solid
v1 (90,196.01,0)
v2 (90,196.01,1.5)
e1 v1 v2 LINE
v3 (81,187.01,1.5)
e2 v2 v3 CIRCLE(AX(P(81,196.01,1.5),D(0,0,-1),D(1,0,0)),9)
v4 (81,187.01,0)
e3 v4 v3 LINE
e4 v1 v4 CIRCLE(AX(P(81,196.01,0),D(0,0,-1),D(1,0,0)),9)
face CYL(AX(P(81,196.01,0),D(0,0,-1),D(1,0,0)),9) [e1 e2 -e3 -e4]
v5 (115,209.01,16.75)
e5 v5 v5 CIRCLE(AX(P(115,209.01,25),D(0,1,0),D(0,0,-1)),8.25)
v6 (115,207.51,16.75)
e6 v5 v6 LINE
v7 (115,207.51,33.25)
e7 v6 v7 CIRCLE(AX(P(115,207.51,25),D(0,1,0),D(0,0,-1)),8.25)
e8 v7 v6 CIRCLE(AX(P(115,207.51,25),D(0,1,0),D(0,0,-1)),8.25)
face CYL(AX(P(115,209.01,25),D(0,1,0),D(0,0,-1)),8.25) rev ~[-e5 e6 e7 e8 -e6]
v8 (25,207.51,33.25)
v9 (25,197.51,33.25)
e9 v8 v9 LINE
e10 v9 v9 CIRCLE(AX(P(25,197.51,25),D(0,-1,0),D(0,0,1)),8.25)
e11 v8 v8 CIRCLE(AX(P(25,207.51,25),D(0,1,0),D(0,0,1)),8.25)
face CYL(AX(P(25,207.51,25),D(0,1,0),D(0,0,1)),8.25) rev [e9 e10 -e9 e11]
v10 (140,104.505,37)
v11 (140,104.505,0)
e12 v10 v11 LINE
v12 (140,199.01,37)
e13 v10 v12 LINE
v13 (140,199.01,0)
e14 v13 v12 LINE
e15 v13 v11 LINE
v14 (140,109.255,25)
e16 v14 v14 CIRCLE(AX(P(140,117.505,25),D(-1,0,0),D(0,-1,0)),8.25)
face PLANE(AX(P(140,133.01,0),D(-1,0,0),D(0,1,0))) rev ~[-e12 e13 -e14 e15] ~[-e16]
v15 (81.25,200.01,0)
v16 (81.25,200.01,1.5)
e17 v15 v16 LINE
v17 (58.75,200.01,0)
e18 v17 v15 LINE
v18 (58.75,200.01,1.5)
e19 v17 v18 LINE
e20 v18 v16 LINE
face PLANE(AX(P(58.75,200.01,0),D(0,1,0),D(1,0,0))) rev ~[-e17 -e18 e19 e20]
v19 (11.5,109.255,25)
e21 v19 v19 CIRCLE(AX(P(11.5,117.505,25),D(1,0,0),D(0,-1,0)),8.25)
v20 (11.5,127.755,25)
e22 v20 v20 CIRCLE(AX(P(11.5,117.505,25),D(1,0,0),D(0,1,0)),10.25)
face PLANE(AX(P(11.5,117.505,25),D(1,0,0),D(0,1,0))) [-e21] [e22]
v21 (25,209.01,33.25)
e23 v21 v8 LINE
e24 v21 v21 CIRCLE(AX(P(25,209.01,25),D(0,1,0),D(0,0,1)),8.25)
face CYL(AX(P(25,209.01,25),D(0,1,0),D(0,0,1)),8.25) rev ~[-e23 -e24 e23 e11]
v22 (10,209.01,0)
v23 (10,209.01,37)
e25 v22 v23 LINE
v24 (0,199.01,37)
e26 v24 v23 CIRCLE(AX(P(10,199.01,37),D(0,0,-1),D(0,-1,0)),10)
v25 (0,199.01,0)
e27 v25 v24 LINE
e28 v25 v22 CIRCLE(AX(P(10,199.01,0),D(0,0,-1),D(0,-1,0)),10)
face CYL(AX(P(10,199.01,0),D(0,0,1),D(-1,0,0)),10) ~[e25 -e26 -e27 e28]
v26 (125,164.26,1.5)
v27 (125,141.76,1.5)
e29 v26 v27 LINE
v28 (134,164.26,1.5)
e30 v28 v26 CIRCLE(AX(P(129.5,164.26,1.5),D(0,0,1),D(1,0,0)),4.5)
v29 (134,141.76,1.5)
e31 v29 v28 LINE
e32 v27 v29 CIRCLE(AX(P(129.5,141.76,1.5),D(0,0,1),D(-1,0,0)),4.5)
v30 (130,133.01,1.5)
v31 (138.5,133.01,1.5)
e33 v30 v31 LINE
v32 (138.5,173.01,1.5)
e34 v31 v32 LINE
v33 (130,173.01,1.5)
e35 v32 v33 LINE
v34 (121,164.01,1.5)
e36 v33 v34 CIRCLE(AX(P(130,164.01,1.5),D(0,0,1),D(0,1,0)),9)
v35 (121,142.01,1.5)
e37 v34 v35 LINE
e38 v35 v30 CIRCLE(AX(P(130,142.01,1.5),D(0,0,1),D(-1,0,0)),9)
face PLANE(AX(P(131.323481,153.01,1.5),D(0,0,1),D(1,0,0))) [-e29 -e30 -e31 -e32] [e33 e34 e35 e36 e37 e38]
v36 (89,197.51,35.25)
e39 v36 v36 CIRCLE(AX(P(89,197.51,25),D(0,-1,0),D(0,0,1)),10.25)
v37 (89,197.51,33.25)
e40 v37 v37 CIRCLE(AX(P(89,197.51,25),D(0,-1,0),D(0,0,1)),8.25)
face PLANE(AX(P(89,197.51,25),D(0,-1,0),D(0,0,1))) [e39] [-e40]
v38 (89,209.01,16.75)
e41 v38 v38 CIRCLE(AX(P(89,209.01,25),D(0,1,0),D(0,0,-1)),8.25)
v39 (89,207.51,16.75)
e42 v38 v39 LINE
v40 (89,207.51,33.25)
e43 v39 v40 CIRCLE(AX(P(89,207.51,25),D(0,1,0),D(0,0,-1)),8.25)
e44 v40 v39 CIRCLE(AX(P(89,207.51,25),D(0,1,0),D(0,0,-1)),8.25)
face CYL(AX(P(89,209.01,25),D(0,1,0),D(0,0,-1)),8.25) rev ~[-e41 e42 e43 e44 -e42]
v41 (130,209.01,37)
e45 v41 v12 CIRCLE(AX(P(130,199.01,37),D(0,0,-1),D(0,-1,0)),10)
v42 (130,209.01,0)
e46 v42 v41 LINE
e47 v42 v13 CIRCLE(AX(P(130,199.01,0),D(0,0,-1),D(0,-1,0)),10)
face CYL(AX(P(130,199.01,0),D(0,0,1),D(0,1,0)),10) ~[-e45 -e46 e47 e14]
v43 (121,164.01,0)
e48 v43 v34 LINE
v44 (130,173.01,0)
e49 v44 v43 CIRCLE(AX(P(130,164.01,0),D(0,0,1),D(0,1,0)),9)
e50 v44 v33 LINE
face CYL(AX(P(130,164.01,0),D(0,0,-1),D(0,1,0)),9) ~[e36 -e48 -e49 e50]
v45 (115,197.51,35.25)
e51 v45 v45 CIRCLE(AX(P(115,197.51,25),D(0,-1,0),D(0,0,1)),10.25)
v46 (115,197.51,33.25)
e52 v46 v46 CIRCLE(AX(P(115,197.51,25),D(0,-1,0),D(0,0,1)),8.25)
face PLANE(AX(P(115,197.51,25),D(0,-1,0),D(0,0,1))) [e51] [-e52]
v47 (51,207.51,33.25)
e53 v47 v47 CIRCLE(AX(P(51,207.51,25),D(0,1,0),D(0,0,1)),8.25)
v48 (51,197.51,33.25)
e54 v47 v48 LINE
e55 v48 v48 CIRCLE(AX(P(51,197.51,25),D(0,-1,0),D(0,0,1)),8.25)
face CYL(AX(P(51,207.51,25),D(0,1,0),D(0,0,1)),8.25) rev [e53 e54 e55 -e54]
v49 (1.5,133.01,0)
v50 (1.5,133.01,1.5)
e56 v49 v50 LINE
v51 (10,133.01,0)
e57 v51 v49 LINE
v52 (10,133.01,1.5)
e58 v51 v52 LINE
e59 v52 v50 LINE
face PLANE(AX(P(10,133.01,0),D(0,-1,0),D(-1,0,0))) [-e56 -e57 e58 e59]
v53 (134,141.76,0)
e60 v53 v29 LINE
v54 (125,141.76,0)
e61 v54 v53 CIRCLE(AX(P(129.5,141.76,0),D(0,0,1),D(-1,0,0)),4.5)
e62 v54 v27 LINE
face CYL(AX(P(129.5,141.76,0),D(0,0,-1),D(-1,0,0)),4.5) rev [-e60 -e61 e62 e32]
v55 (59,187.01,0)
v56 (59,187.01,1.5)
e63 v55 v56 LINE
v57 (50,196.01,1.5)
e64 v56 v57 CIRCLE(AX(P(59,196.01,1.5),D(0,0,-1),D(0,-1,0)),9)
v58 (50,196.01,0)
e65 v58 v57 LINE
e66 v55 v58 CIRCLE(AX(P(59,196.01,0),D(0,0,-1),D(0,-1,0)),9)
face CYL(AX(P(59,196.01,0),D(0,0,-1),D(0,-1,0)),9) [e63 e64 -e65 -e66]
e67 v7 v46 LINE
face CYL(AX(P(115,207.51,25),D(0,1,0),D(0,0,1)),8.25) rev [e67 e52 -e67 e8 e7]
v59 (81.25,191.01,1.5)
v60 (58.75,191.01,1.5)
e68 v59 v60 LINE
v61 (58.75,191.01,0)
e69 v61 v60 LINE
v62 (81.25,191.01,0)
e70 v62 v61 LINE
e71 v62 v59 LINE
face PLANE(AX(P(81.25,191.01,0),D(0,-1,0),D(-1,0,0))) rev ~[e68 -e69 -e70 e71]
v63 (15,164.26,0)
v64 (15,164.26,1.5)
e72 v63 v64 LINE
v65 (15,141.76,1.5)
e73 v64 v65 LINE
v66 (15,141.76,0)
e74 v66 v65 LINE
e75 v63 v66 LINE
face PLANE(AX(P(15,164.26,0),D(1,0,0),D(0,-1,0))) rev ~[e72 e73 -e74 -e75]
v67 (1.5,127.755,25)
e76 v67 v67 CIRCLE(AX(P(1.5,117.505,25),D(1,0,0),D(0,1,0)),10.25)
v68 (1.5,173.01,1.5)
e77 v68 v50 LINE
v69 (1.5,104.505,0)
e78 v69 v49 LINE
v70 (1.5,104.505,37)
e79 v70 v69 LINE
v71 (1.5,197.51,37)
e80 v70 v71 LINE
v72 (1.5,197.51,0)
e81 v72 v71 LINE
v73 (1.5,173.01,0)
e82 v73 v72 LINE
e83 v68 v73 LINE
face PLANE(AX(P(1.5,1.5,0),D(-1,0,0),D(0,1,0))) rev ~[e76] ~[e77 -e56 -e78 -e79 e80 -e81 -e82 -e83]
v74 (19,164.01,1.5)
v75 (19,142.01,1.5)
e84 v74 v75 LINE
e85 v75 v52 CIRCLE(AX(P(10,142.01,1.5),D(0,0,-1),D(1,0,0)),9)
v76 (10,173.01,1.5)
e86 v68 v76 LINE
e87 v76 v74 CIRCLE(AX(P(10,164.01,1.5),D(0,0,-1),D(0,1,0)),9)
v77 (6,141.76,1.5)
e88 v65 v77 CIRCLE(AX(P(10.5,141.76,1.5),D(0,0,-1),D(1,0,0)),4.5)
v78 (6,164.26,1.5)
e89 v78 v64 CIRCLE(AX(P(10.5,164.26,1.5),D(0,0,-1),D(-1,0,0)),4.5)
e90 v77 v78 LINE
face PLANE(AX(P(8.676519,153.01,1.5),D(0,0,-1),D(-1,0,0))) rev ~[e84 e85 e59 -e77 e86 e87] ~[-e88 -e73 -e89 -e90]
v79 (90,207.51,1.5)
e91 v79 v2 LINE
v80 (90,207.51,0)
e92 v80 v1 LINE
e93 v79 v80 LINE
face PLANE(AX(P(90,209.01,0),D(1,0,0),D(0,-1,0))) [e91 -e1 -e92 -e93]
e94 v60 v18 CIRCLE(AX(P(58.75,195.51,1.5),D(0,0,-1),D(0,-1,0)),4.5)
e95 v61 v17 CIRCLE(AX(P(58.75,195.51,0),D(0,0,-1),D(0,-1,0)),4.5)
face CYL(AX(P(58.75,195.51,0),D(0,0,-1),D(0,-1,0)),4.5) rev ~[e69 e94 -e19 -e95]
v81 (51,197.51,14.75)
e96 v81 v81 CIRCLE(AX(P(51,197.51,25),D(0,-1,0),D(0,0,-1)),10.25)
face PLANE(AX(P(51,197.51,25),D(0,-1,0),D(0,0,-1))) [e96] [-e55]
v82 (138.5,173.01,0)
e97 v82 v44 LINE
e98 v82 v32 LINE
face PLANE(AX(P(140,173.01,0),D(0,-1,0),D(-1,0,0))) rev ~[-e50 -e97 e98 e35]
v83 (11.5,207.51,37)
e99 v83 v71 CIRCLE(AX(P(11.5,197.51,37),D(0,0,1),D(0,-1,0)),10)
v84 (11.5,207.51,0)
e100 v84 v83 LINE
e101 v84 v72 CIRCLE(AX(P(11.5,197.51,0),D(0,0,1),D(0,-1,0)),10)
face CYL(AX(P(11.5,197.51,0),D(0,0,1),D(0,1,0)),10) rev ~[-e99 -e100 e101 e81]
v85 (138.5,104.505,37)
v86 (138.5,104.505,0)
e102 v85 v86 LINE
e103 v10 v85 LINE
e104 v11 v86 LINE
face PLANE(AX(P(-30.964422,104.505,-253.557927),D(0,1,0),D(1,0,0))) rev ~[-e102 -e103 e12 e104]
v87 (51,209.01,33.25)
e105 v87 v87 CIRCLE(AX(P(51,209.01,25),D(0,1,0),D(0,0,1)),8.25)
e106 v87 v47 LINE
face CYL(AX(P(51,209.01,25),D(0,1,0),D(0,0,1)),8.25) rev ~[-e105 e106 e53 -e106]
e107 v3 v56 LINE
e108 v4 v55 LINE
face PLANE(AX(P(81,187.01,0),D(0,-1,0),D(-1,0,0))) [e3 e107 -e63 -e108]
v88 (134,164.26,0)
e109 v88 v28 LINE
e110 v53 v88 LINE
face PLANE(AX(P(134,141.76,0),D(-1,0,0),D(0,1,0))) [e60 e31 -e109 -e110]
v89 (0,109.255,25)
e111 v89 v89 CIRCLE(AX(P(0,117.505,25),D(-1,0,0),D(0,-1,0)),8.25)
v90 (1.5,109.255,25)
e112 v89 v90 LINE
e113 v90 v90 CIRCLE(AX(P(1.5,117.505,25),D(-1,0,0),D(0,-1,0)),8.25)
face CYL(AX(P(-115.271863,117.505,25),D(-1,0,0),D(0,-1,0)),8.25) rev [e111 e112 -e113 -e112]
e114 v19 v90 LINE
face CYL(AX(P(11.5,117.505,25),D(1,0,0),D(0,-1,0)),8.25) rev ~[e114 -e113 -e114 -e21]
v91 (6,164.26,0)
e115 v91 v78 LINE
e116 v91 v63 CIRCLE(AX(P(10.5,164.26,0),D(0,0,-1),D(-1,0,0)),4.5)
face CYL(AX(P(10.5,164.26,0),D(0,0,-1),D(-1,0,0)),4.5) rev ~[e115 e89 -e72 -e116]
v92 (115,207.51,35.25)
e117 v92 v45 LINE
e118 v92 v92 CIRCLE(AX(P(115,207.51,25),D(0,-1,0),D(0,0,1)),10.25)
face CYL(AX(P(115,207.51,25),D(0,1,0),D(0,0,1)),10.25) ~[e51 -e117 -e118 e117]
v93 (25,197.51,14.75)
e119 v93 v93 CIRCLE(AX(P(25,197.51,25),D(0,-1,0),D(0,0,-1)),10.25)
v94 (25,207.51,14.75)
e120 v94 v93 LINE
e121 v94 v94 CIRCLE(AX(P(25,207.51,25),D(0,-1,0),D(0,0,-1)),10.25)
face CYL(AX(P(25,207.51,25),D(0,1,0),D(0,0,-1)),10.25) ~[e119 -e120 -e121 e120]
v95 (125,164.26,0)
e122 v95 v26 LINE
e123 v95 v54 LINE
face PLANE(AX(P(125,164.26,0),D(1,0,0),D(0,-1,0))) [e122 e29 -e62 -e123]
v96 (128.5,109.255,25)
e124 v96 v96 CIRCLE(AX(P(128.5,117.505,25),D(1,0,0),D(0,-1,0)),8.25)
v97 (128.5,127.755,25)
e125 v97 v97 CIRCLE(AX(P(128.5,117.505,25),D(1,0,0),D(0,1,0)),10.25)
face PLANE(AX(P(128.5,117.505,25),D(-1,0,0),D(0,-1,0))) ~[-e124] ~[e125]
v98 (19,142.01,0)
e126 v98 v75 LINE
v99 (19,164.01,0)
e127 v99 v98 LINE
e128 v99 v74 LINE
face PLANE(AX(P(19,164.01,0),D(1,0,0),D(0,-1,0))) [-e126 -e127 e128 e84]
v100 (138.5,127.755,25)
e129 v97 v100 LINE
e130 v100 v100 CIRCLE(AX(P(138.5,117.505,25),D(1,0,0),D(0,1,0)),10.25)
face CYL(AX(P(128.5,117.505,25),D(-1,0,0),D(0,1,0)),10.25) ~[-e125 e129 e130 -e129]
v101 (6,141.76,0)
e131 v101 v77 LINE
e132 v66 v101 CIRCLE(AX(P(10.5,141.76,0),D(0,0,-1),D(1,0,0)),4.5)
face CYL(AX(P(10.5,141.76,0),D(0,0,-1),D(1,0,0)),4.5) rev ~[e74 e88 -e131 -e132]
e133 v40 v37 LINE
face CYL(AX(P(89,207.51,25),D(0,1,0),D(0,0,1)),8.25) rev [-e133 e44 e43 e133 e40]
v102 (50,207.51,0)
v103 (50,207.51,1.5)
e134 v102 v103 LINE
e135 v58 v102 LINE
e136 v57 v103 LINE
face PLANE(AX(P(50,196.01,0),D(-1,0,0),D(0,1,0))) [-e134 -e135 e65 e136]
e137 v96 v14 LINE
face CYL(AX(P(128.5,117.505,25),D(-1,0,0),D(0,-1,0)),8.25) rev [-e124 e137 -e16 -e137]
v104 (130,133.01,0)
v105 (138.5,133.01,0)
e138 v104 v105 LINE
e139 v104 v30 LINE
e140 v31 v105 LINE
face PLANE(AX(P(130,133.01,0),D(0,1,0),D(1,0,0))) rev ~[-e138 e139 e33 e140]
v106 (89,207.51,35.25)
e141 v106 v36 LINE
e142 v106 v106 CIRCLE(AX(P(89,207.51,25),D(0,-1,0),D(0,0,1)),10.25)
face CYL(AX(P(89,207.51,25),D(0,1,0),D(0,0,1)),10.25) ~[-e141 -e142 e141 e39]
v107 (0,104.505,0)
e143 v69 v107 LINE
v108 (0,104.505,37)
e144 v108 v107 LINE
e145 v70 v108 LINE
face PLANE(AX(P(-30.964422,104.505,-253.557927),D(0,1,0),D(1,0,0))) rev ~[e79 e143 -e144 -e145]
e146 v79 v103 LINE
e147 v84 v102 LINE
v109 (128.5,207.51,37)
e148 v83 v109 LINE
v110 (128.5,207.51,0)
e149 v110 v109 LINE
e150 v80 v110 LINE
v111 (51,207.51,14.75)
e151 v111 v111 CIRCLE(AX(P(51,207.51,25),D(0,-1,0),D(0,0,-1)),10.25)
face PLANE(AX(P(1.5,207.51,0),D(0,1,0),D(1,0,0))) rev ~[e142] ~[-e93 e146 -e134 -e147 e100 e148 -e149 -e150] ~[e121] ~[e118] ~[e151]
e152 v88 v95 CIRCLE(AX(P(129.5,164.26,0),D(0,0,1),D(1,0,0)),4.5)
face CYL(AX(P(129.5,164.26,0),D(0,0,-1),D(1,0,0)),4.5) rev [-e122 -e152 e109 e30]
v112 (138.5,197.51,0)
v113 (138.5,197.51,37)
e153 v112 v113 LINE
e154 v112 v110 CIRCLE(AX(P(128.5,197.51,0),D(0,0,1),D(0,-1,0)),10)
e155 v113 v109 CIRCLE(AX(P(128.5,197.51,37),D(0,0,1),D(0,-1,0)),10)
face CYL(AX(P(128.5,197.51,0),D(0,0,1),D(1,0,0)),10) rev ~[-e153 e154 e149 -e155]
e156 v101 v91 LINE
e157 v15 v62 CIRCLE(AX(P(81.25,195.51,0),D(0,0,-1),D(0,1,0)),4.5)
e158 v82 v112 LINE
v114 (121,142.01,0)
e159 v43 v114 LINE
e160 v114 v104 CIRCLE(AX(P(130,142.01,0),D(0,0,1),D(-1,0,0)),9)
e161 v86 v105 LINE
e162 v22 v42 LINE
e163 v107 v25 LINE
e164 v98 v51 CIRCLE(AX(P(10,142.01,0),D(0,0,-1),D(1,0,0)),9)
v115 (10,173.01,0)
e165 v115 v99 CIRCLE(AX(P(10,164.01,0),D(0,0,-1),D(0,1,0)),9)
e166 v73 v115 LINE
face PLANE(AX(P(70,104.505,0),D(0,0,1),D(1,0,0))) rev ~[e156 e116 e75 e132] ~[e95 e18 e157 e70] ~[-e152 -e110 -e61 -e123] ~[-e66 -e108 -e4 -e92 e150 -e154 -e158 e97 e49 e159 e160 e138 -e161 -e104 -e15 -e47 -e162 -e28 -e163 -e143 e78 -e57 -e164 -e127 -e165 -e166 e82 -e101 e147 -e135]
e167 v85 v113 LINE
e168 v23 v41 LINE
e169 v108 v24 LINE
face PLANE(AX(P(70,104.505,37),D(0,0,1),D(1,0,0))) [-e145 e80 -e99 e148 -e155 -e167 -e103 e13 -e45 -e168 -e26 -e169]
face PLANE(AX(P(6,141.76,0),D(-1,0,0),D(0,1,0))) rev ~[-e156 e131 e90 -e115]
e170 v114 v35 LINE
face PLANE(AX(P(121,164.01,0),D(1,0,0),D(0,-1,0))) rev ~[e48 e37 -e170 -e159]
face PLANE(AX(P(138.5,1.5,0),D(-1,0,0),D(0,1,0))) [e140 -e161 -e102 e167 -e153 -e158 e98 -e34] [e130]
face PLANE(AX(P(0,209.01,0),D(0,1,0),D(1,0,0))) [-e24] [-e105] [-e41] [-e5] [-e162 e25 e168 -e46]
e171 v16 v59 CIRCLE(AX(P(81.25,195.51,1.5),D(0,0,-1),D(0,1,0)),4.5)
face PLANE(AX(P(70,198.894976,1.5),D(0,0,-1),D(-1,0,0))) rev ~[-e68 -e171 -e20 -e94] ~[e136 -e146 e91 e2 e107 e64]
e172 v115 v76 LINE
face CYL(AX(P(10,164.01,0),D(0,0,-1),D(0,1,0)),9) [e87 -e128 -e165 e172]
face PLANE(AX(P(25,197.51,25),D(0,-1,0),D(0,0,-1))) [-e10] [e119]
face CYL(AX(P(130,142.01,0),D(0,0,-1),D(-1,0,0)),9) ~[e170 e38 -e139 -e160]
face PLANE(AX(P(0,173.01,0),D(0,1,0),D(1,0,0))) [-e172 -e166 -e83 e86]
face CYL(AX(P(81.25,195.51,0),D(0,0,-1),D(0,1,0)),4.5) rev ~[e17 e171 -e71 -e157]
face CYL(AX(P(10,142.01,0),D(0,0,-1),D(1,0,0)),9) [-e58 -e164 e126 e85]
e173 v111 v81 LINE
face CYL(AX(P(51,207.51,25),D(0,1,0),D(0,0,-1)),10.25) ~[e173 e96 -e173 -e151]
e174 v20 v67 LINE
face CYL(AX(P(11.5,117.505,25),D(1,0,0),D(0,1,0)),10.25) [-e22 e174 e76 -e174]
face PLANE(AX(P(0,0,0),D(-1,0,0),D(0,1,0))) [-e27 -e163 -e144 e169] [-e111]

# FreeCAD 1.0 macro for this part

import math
import FreeCAD as App
import Part
import Sketcher

V = App.Vector


def edges_at(feature, points):
    """Names of the edges that pass closest to the given points."""
    edges = feature.Shape.Edges
    near = lambda p: min(range(len(edges)), key=lambda i: edges[i].distToShape(Part.Vertex(*p))[0])
    return sorted({f"Edge{near(p) + 1}" for p in points})


def add_polygon(sketch, points):
    """Adds a closed chain of lines whose ends are joined by coincident constraints."""
    first, n = sketch.GeometryCount, len(points)
    for a, b in zip(points, points[1:] + points[:1]):
        sketch.addGeometry(Part.LineSegment(App.Vector(*a, 0), App.Vector(*b, 0)), False)
    for i in range(n):
        sketch.addConstraint(Sketcher.Constraint("Coincident", first + i, 2, first + (i + 1) % n, 1))

doc = App.newDocument("Part")
body = doc.addObject("PartDesign::Body", "Body")

# Sketch on XY plane
sketch1 = body.newObject("Sketcher::SketchObject", "Sketch")
sketch1.AttachmentSupport = (doc.getObject("XY_Plane"), [""])
sketch1.MapMode = "FlatFace"
add_polygon(sketch1, [(0, 209), (0, 0), (140, 0), (140, 209)])  # lines 0-3
add_polygon(sketch1, [(138, 2), (2, 2), (2, 208), (138, 208)])  # lines 4-7
sketch1.addConstraint(Sketcher.Constraint("Vertical", 0))
sketch1.addConstraint(Sketcher.Constraint("Horizontal", 1))
sketch1.addConstraint(Sketcher.Constraint("Vertical", 2))
sketch1.addConstraint(Sketcher.Constraint("Horizontal", 3))
sketch1.addConstraint(Sketcher.Constraint("Horizontal", 4))
sketch1.addConstraint(Sketcher.Constraint("Vertical", 5))
sketch1.addConstraint(Sketcher.Constraint("Horizontal", 6))
sketch1.addConstraint(Sketcher.Constraint("Vertical", 7))
sketch1.addConstraint(Sketcher.Constraint("Coincident", 0, 2, -1, 1))
sketch1.addConstraint(Sketcher.Constraint("DistanceX", 1, 1, 1, 2, 140.0))
sketch1.addConstraint(Sketcher.Constraint("DistanceX", 4, 2, 4, 1, 137.0))
sketch1.addConstraint(Sketcher.Constraint("DistanceY", 0, 2, 0, 1, 209.01))
sketch1.addConstraint(Sketcher.Constraint("DistanceY", 5, 1, 5, 2, 206.01))
sketch1.addConstraint(Sketcher.Constraint("DistanceX", -1, 1, 4, 2, 1.5))
sketch1.addConstraint(Sketcher.Constraint("DistanceY", -1, 1, 4, 2, 1.5))
pad1 = body.newObject("PartDesign::Pad", "Pad")
pad1.Profile = sketch1
pad1.Length = 37
doc.recompute()

fillet = body.newObject("PartDesign::Fillet", "Fillet")
fillet.Base = (pad1, edges_at(pad1, [
    (1.5, 207.51, 18.5),
    (1.5, 1.5, 18.5),
    (138.5, 1.5, 18.5),
    (138.5, 207.51, 18.5),
    (0, 209.01, 18.5),
    (140, 209.01, 18.5),
    (140, 0, 18.5),
    (0, 0, 18.5),
]))
fillet.Radius = 10

# Sketch on XZ plane
sketch2 = body.newObject("Sketcher::SketchObject", "Sketch001")
sketch2.AttachmentSupport = (doc.getObject("XZ_Plane"), [""])
sketch2.MapMode = "FlatFace"
sketch2.AttachmentOffset = App.Placement(V(0, 0, -209.01), App.Rotation())
sketch2.addGeometry(Part.Circle(V(25, 25, 0), V(0, 0, 1), 8), False)
sketch2.addGeometry(Part.Circle(V(51, 25, 0), V(0, 0, 1), 8), False)
sketch2.addGeometry(Part.Circle(V(89, 25, 0), V(0, 0, 1), 8), False)
sketch2.addGeometry(Part.Circle(V(115, 25, 0), V(0, 0, 1), 8), False)
sketch2.addConstraint(Sketcher.Constraint("Equal", 0, 1))
sketch2.addConstraint(Sketcher.Constraint("Equal", 1, 2))
sketch2.addConstraint(Sketcher.Constraint("Equal", 2, 3))
sketch2.addConstraint(Sketcher.Constraint("Horizontal", 0, 3, 1, 3))
sketch2.addConstraint(Sketcher.Constraint("Horizontal", 1, 3, 2, 3))
sketch2.addConstraint(Sketcher.Constraint("Horizontal", 2, 3, 3, 3))
sketch2.addConstraint(Sketcher.Constraint("Diameter", 0, 16.5))
sketch2.addConstraint(Sketcher.Constraint("DistanceX", -1, 1, 0, 3, 25.0))
sketch2.addConstraint(Sketcher.Constraint("DistanceY", -1, 1, 0, 3, 25.0))
sketch2.addConstraint(Sketcher.Constraint("DistanceX", -1, 1, 1, 3, 51.0))
sketch2.addConstraint(Sketcher.Constraint("DistanceX", -1, 1, 2, 3, 89.0))
sketch2.addConstraint(Sketcher.Constraint("DistanceX", -1, 1, 3, 3, 115.0))
pocket1 = body.newObject("PartDesign::Pocket", "Pocket")
pocket1.Profile = sketch2
pocket1.Length = 1.5
pocket1.Reversed = True

# Sketch on YZ plane
sketch3 = body.newObject("Sketcher::SketchObject", "Sketch002")
sketch3.AttachmentSupport = (doc.getObject("YZ_Plane"), [""])
sketch3.MapMode = "FlatFace"
sketch3.AttachmentOffset = App.Placement(V(0, 0, 140), App.Rotation())
sketch3.addGeometry(Part.Circle(V(118, 25, 0), V(0, 0, 1), 8), False)
sketch3.addGeometry(Part.Circle(V(92, 25, 0), V(0, 0, 1), 8), False)
sketch3.addConstraint(Sketcher.Constraint("Equal", 0, 1))
sketch3.addConstraint(Sketcher.Constraint("Horizontal", 0, 3, 1, 3))
sketch3.addConstraint(Sketcher.Constraint("Diameter", 0, 16.5))
sketch3.addConstraint(Sketcher.Constraint("DistanceY", -1, 1, 0, 3, 25.0))
sketch3.addConstraint(Sketcher.Constraint("DistanceX", 1, 3, 0, 3, 26.0))
sketch3.addConstraint(Sketcher.Constraint("DistanceX", -1, 1, 0, 3, 117.505))
pocket2 = body.newObject("PartDesign::Pocket", "Pocket001")
pocket2.Profile = sketch3
pocket2.Type = "ThroughAll"
pocket2.Midplane = True

# Sketch on XY plane
sketch4 = body.newObject("Sketcher::SketchObject", "Sketch003")
sketch4.AttachmentSupport = (doc.getObject("XY_Plane"), [""])
sketch4.MapMode = "FlatFace"
sketch4.addGeometry(Part.LineSegment(V(130, 173, 0), V(140, 173, 0)), False)
sketch4.addGeometry(Part.LineSegment(V(140, 173, 0), V(140, 133, 0)), False)
sketch4.addGeometry(Part.LineSegment(V(140, 133, 0), V(130, 133, 0)), False)
sketch4.addGeometry(Part.ArcOfCircle(Part.Circle(V(130, 142, 0), V(0, 0, 1), 9), math.radians(180), math.radians(270)), False)
sketch4.addGeometry(Part.LineSegment(V(121, 142, 0), V(121, 164, 0)), False)
sketch4.addGeometry(Part.ArcOfCircle(Part.Circle(V(130, 164, 0), V(0, 0, 1), 9), math.radians(90), math.radians(180)), False)
sketch4.addGeometry(Part.LineSegment(V(125, 164.3, 0), V(125, 141.8, 0)), False)
sketch4.addGeometry(Part.ArcOfCircle(Part.Circle(V(129.5, 141.8, 0), V(0, 0, 1), 4.5), math.radians(180), math.radians(360)), False)
sketch4.addGeometry(Part.LineSegment(V(134, 141.8, 0), V(134, 164.3, 0)), False)
sketch4.addGeometry(Part.ArcOfCircle(Part.Circle(V(129.5, 164.3, 0), V(0, 0, 1), 4.5), math.radians(0), math.radians(180)), False)
sketch4.addGeometry(Part.LineSegment(V(90, 209, 0), V(90, 196, 0)), False)
sketch4.addGeometry(Part.ArcOfCircle(Part.Circle(V(81, 196, 0), V(0, 0, 1), 9), math.radians(-90), math.radians(0)), False)
sketch4.addGeometry(Part.LineSegment(V(81, 187, 0), V(59, 187, 0)), False)
sketch4.addGeometry(Part.ArcOfCircle(Part.Circle(V(59, 196, 0), V(0, 0, 1), 9), math.radians(180), math.radians(270)), False)
sketch4.addGeometry(Part.LineSegment(V(50, 196, 0), V(50, 209, 0)), False)
sketch4.addGeometry(Part.LineSegment(V(50, 209, 0), V(90, 209, 0)), False)
sketch4.addGeometry(Part.LineSegment(V(81.2, 200, 0), V(58.8, 200, 0)), False)
sketch4.addGeometry(Part.ArcOfCircle(Part.Circle(V(58.8, 195.5, 0), V(0, 0, 1), 4.5), math.radians(90), math.radians(270)), False)
sketch4.addGeometry(Part.LineSegment(V(58.8, 191, 0), V(81.2, 191, 0)), False)
sketch4.addGeometry(Part.ArcOfCircle(Part.Circle(V(81.2, 195.5, 0), V(0, 0, 1), 4.5), math.radians(-90), math.radians(90)), False)
sketch4.addGeometry(Part.LineSegment(V(19, 164, 0), V(19, 142, 0)), False)
sketch4.addGeometry(Part.ArcOfCircle(Part.Circle(V(10, 142, 0), V(0, 0, 1), 9), math.radians(-90), math.radians(0)), False)
sketch4.addGeometry(Part.LineSegment(V(10, 133, 0), V(0, 133, 0)), False)
sketch4.addGeometry(Part.LineSegment(V(0, 133, 0), V(0, 173, 0)), False)
sketch4.addGeometry(Part.LineSegment(V(0, 173, 0), V(10, 173, 0)), False)
sketch4.addGeometry(Part.ArcOfCircle(Part.Circle(V(10, 164, 0), V(0, 0, 1), 9), math.radians(0), math.radians(90)), False)
sketch4.addGeometry(Part.LineSegment(V(15, 141.8, 0), V(15, 164.3, 0)), False)
sketch4.addGeometry(Part.ArcOfCircle(Part.Circle(V(10.5, 164.3, 0), V(0, 0, 1), 4.5), math.radians(0), math.radians(180)), False)
sketch4.addGeometry(Part.LineSegment(V(6, 164.3, 0), V(6, 141.8, 0)), False)
sketch4.addGeometry(Part.ArcOfCircle(Part.Circle(V(10.5, 141.8, 0), V(0, 0, 1), 4.5), math.radians(180), math.radians(360)), False)
sketch4.addGeometry(Part.LineSegment(V(10, 36, 0), V(0, 36, 0)), False)
sketch4.addGeometry(Part.LineSegment(V(0, 36, 0), V(0, 76, 0)), False)
sketch4.addGeometry(Part.LineSegment(V(0, 76, 0), V(10, 76, 0)), False)
sketch4.addGeometry(Part.ArcOfCircle(Part.Circle(V(10, 67, 0), V(0, 0, 1), 9), math.radians(0), math.radians(90)), False)
sketch4.addGeometry(Part.LineSegment(V(19, 67, 0), V(19, 45, 0)), False)
sketch4.addGeometry(Part.ArcOfCircle(Part.Circle(V(10, 45, 0), V(0, 0, 1), 9), math.radians(-90), math.radians(0)), False)
sketch4.addGeometry(Part.LineSegment(V(15, 44.8, 0), V(15, 67.2, 0)), False)
sketch4.addGeometry(Part.ArcOfCircle(Part.Circle(V(10.5, 67.2, 0), V(0, 0, 1), 4.5), math.radians(0), math.radians(180)), False)
sketch4.addGeometry(Part.LineSegment(V(6, 67.2, 0), V(6, 44.8, 0)), False)
sketch4.addGeometry(Part.ArcOfCircle(Part.Circle(V(10.5, 44.8, 0), V(0, 0, 1), 4.5), math.radians(180), math.radians(360)), False)
sketch4.addGeometry(Part.LineSegment(V(121, 45, 0), V(121, 67, 0)), False)
sketch4.addGeometry(Part.ArcOfCircle(Part.Circle(V(130, 67, 0), V(0, 0, 1), 9), math.radians(90), math.radians(180)), False)
sketch4.addGeometry(Part.LineSegment(V(130, 76, 0), V(140, 76, 0)), False)
sketch4.addGeometry(Part.LineSegment(V(140, 76, 0), V(140, 36, 0)), False)
sketch4.addGeometry(Part.LineSegment(V(140, 36, 0), V(130, 36, 0)), False)
sketch4.addGeometry(Part.ArcOfCircle(Part.Circle(V(130, 45, 0), V(0, 0, 1), 9), math.radians(180), math.radians(270)), False)
sketch4.addGeometry(Part.LineSegment(V(125, 67.2, 0), V(125, 44.8, 0)), False)
sketch4.addGeometry(Part.ArcOfCircle(Part.Circle(V(129.5, 44.8, 0), V(0, 0, 1), 4.5), math.radians(180), math.radians(360)), False)
sketch4.addGeometry(Part.LineSegment(V(134, 44.8, 0), V(134, 67.2, 0)), False)
sketch4.addGeometry(Part.ArcOfCircle(Part.Circle(V(129.5, 67.2, 0), V(0, 0, 1), 4.5), math.radians(0), math.radians(180)), False)
sketch4.addConstraint(Sketcher.Constraint("Coincident", 0, 2, 1, 1))
sketch4.addConstraint(Sketcher.Constraint("Coincident", 1, 2, 2, 1))
sketch4.addConstraint(Sketcher.Constraint("Tangent", 2, 2, 3, 2))
sketch4.addConstraint(Sketcher.Constraint("Tangent", 3, 1, 4, 1))
sketch4.addConstraint(Sketcher.Constraint("Tangent", 4, 2, 5, 2))
sketch4.addConstraint(Sketcher.Constraint("Tangent", 5, 1, 0, 1))
sketch4.addConstraint(Sketcher.Constraint("Tangent", 6, 2, 7, 1))
sketch4.addConstraint(Sketcher.Constraint("Tangent", 7, 2, 8, 1))
sketch4.addConstraint(Sketcher.Constraint("Tangent", 8, 2, 9, 1))
sketch4.addConstraint(Sketcher.Constraint("Tangent", 9, 2, 6, 1))
sketch4.addConstraint(Sketcher.Constraint("Tangent", 10, 2, 11, 2))
sketch4.addConstraint(Sketcher.Constraint("Tangent", 11, 1, 12, 1))
sketch4.addConstraint(Sketcher.Constraint("Tangent", 12, 2, 13, 2))
sketch4.addConstraint(Sketcher.Constraint("Tangent", 13, 1, 14, 1))
sketch4.addConstraint(Sketcher.Constraint("Coincident", 14, 2, 15, 1))
sketch4.addConstraint(Sketcher.Constraint("Coincident", 15, 2, 10, 1))
sketch4.addConstraint(Sketcher.Constraint("Tangent", 16, 2, 17, 1))
sketch4.addConstraint(Sketcher.Constraint("Tangent", 17, 2, 18, 1))
sketch4.addConstraint(Sketcher.Constraint("Tangent", 18, 2, 19, 1))
sketch4.addConstraint(Sketcher.Constraint("Tangent", 19, 2, 16, 1))
sketch4.addConstraint(Sketcher.Constraint("Tangent", 20, 2, 21, 2))
sketch4.addConstraint(Sketcher.Constraint("Tangent", 21, 1, 22, 1))
sketch4.addConstraint(Sketcher.Constraint("Coincident", 22, 2, 23, 1))
sketch4.addConstraint(Sketcher.Constraint("Coincident", 23, 2, 24, 1))
sketch4.addConstraint(Sketcher.Constraint("Tangent", 24, 2, 25, 2))
sketch4.addConstraint(Sketcher.Constraint("Tangent", 25, 1, 20, 1))
sketch4.addConstraint(Sketcher.Constraint("Tangent", 26, 2, 27, 1))
sketch4.addConstraint(Sketcher.Constraint("Tangent", 27, 2, 28, 1))
sketch4.addConstraint(Sketcher.Constraint("Tangent", 28, 2, 29, 1))
sketch4.addConstraint(Sketcher.Constraint("Tangent", 29, 2, 26, 1))
sketch4.addConstraint(Sketcher.Constraint("Coincident", 30, 2, 31, 1))
sketch4.addConstraint(Sketcher.Constraint("Coincident", 31, 2, 32, 1))
sketch4.addConstraint(Sketcher.Constraint("Tangent", 32, 2, 33, 2))
sketch4.addConstraint(Sketcher.Constraint("Tangent", 33, 1, 34, 1))
sketch4.addConstraint(Sketcher.Constraint("Tangent", 34, 2, 35, 2))
sketch4.addConstraint(Sketcher.Constraint("Tangent", 35, 1, 30, 1))
sketch4.addConstraint(Sketcher.Constraint("Tangent", 36, 2, 37, 1))
sketch4.addConstraint(Sketcher.Constraint("Tangent", 37, 2, 38, 1))
sketch4.addConstraint(Sketcher.Constraint("Tangent", 38, 2, 39, 1))
sketch4.addConstraint(Sketcher.Constraint("Tangent", 39, 2, 36, 1))
sketch4.addConstraint(Sketcher.Constraint("Tangent", 40, 2, 41, 2))
sketch4.addConstraint(Sketcher.Constraint("Tangent", 41, 1, 42, 1))
sketch4.addConstraint(Sketcher.Constraint("Coincident", 42, 2, 43, 1))
sketch4.addConstraint(Sketcher.Constraint("Coincident", 43, 2, 44, 1))
sketch4.addConstraint(Sketcher.Constraint("Tangent", 44, 2, 45, 2))
sketch4.addConstraint(Sketcher.Constraint("Tangent", 45, 1, 40, 1))
sketch4.addConstraint(Sketcher.Constraint("Tangent", 46, 2, 47, 1))
sketch4.addConstraint(Sketcher.Constraint("Tangent", 47, 2, 48, 1))
sketch4.addConstraint(Sketcher.Constraint("Tangent", 48, 2, 49, 1))
sketch4.addConstraint(Sketcher.Constraint("Tangent", 49, 2, 46, 1))
sketch4.addConstraint(Sketcher.Constraint("Horizontal", 0))
sketch4.addConstraint(Sketcher.Constraint("Vertical", 1))
sketch4.addConstraint(Sketcher.Constraint("Horizontal", 2))
sketch4.addConstraint(Sketcher.Constraint("Vertical", 4))
sketch4.addConstraint(Sketcher.Constraint("Vertical", 6))
sketch4.addConstraint(Sketcher.Constraint("Vertical", 8))
sketch4.addConstraint(Sketcher.Constraint("Vertical", 10))
sketch4.addConstraint(Sketcher.Constraint("Horizontal", 12))
sketch4.addConstraint(Sketcher.Constraint("Vertical", 14))
sketch4.addConstraint(Sketcher.Constraint("Horizontal", 15))
sketch4.addConstraint(Sketcher.Constraint("Horizontal", 16))
sketch4.addConstraint(Sketcher.Constraint("Horizontal", 18))
sketch4.addConstraint(Sketcher.Constraint("Vertical", 20))
sketch4.addConstraint(Sketcher.Constraint("Horizontal", 22))
sketch4.addConstraint(Sketcher.Constraint("Vertical", 23))
sketch4.addConstraint(Sketcher.Constraint("Horizontal", 24))
sketch4.addConstraint(Sketcher.Constraint("Vertical", 26))
sketch4.addConstraint(Sketcher.Constraint("Vertical", 28))
sketch4.addConstraint(Sketcher.Constraint("Horizontal", 30))
sketch4.addConstraint(Sketcher.Constraint("Vertical", 31))
sketch4.addConstraint(Sketcher.Constraint("Horizontal", 32))
sketch4.addConstraint(Sketcher.Constraint("Vertical", 34))
sketch4.addConstraint(Sketcher.Constraint("Vertical", 36))
sketch4.addConstraint(Sketcher.Constraint("Vertical", 38))
sketch4.addConstraint(Sketcher.Constraint("Vertical", 40))
sketch4.addConstraint(Sketcher.Constraint("Horizontal", 42))
sketch4.addConstraint(Sketcher.Constraint("Vertical", 43))
sketch4.addConstraint(Sketcher.Constraint("Horizontal", 44))
sketch4.addConstraint(Sketcher.Constraint("Vertical", 46))
sketch4.addConstraint(Sketcher.Constraint("Vertical", 48))
sketch4.addConstraint(Sketcher.Constraint("Equal", 3, 5))
sketch4.addConstraint(Sketcher.Constraint("Equal", 5, 11))
sketch4.addConstraint(Sketcher.Constraint("Equal", 11, 13))
sketch4.addConstraint(Sketcher.Constraint("Equal", 9, 17))
sketch4.addConstraint(Sketcher.Constraint("Equal", 13, 21))
sketch4.addConstraint(Sketcher.Constraint("Equal", 21, 25))
sketch4.addConstraint(Sketcher.Constraint("Equal", 19, 27))
sketch4.addConstraint(Sketcher.Constraint("Equal", 25, 33))
sketch4.addConstraint(Sketcher.Constraint("Equal", 33, 35))
sketch4.addConstraint(Sketcher.Constraint("Equal", 29, 37))
sketch4.addConstraint(Sketcher.Constraint("Equal", 35, 41))
sketch4.addConstraint(Sketcher.Constraint("Equal", 41, 45))
sketch4.addConstraint(Sketcher.Constraint("Equal", 39, 47))
sketch4.addConstraint(Sketcher.Constraint("PointOnObject", 22, 2, -2))
sketch4.addConstraint(Sketcher.Constraint("PointOnObject", 30, 2, -2))
sketch4.addConstraint(Sketcher.Constraint("Horizontal", 3, 3, 21, 3))
sketch4.addConstraint(Sketcher.Constraint("Horizontal", 5, 3, 25, 3))
sketch4.addConstraint(Sketcher.Constraint("Horizontal", 9, 3, 27, 3))
sketch4.addConstraint(Sketcher.Constraint("Horizontal", 7, 3, 29, 3))
sketch4.addConstraint(Sketcher.Constraint("Horizontal", 33, 3, 41, 3))
sketch4.addConstraint(Sketcher.Constraint("Horizontal", 35, 3, 45, 3))
sketch4.addConstraint(Sketcher.Constraint("Horizontal", 39, 3, 47, 3))
sketch4.addConstraint(Sketcher.Constraint("Horizontal", 37, 3, 49, 3))
sketch4.addConstraint(Sketcher.Constraint("Vertical", 25, 3, 33, 3))
sketch4.addConstraint(Sketcher.Constraint("Vertical", 29, 3, 37, 3))
sketch4.addConstraint(Sketcher.Constraint("Vertical", 5, 3, 41, 3))
sketch4.addConstraint(Sketcher.Constraint("Vertical", 9, 3, 47, 3))
sketch4.addConstraint(Sketcher.Constraint("Vertical", 1, 2, 42, 2))
sketch4.addConstraint(Sketcher.Constraint("Equal", 2, 22))
sketch4.addConstraint(Sketcher.Constraint("Equal", 15, 1))
sketch4.addConstraint(Sketcher.Constraint("Equal", 18, 6))
sketch4.addConstraint(Sketcher.Constraint("Equal", 23, 31))
sketch4.addConstraint(Sketcher.Constraint("Equal", 28, 36))
sketch4.addConstraint(Sketcher.Constraint("Radius", 3, 9.0))
sketch4.addConstraint(Sketcher.Constraint("Radius", 7, 4.5))
sketch4.addConstraint(Sketcher.Constraint("DistanceX", 0, 1, 0, 2, 10.0))
sketch4.addConstraint(Sketcher.Constraint("DistanceX", 12, 2, 12, 1, 22.0))
sketch4.addConstraint(Sketcher.Constraint("DistanceY", 10, 2, 10, 1, 13.0))
sketch4.addConstraint(Sketcher.Constraint("DistanceX", 16, 2, 16, 1, 22.5))
sketch4.addConstraint(Sketcher.Constraint("DistanceX", -1, 1, 3, 3, 130.0))
sketch4.addConstraint(Sketcher.Constraint("DistanceX", -1, 1, 11, 3, 81.0))
sketch4.addConstraint(Sketcher.Constraint("DistanceY", -1, 1, 33, 3, 67.0))
sketch4.addConstraint(Sketcher.Constraint("DistanceX", -1, 1, 6, 2, 125.0))
sketch4.addConstraint(Sketcher.Constraint("DistanceX", -1, 1, 26, 2, 15.0))
sketch4.addConstraint(Sketcher.Constraint("DistanceY", -1, 1, 3, 3, 142.01))
sketch4.addConstraint(Sketcher.Constraint("DistanceY", -1, 1, 7, 3, 141.76))
sketch4.addConstraint(Sketcher.Constraint("DistanceY", -1, 1, 11, 3, 196.01))
sketch4.addConstraint(Sketcher.Constraint("DistanceX", -1, 1, 17, 3, 58.75))
sketch4.addConstraint(Sketcher.Constraint("DistanceY", -1, 1, 17, 3, 195.51))
sketch4.addConstraint(Sketcher.Constraint("DistanceY", -1, 1, 37, 3, 67.25))
pad2 = body.newObject("PartDesign::Pad", "Pad001")
pad2.Profile = sketch4
pad2.Length = 1.5

# Sketch on XY plane
sketch5 = body.newObject("Sketcher::SketchObject", "Sketch004")
sketch5.AttachmentSupport = (doc.getObject("XY_Plane"), [""])
sketch5.MapMode = "FlatFace"
sketch5.AttachmentOffset = App.Placement(V(0, 0, 1.5), App.Rotation())
add_polygon(sketch5, [(-31, 105), (-31, -15), (200, -15), (200, 105)])  # lines 0-3
sketch5.addConstraint(Sketcher.Constraint("Vertical", 0))
sketch5.addConstraint(Sketcher.Constraint("Horizontal", 1))
sketch5.addConstraint(Sketcher.Constraint("Vertical", 2))
sketch5.addConstraint(Sketcher.Constraint("Horizontal", 3))
sketch5.addConstraint(Sketcher.Constraint("DistanceY", -1, 1, 2, 2, 104.505))
sketch5.addConstraint(Sketcher.Constraint("DistanceX", 1, 1, 1, 2, 230.516003))
sketch5.addConstraint(Sketcher.Constraint("DistanceY", 0, 2, 0, 1, 119.565203))
sketch5.addConstraint(Sketcher.Constraint("DistanceX", -1, 1, 1, 2, 199.551581))
pocket3 = body.newObject("PartDesign::Pocket", "Pocket002")
pocket3.Profile = sketch5
pocket3.Type = "ThroughAll"
pocket3.Midplane = True

# Sketch on XZ plane
sketch6 = body.newObject("Sketcher::SketchObject", "Sketch005")
sketch6.AttachmentSupport = (doc.getObject("XZ_Plane"), [""])
sketch6.MapMode = "FlatFace"
sketch6.AttachmentOffset = App.Placement(V(0, 0, -207.51), App.Rotation())
sketch6.addGeometry(Part.Circle(V(51, 25, 0), V(0, 0, 1), 10), False)
sketch6.addGeometry(Part.Circle(V(51, 25, 0), V(0, 0, 1), 8), False)
sketch6.addGeometry(Part.Circle(V(25, 25, 0), V(0, 0, 1), 10), False)
sketch6.addGeometry(Part.Circle(V(25, 25, 0), V(0, 0, 1), 8), False)
sketch6.addGeometry(Part.Circle(V(115, 25, 0), V(0, 0, 1), 10), False)
sketch6.addGeometry(Part.Circle(V(115, 25, 0), V(0, 0, 1), 8), False)
sketch6.addGeometry(Part.Circle(V(89, 25, 0), V(0, 0, 1), 10), False)
sketch6.addGeometry(Part.Circle(V(89, 25, 0), V(0, 0, 1), 8), False)
sketch6.addConstraint(Sketcher.Constraint("Coincident", 1, 3, 0, 3))
sketch6.addConstraint(Sketcher.Constraint("Coincident", 3, 3, 2, 3))
sketch6.addConstraint(Sketcher.Constraint("Coincident", 5, 3, 4, 3))
sketch6.addConstraint(Sketcher.Constraint("Coincident", 7, 3, 6, 3))
sketch6.addConstraint(Sketcher.Constraint("Equal", 0, 2))
sketch6.addConstraint(Sketcher.Constraint("Equal", 1, 3))
sketch6.addConstraint(Sketcher.Constraint("Equal", 2, 4))
sketch6.addConstraint(Sketcher.Constraint("Equal", 3, 5))
sketch6.addConstraint(Sketcher.Constraint("Equal", 4, 6))
sketch6.addConstraint(Sketcher.Constraint("Equal", 5, 7))
sketch6.addConstraint(Sketcher.Constraint("Horizontal", 1, 3, 2, 3))
sketch6.addConstraint(Sketcher.Constraint("Horizontal", 3, 3, 4, 3))
sketch6.addConstraint(Sketcher.Constraint("Horizontal", 5, 3, 6, 3))
sketch6.addConstraint(Sketcher.Constraint("Diameter", 0, 20.5))
sketch6.addConstraint(Sketcher.Constraint("Diameter", 1, 16.5))
sketch6.addConstraint(Sketcher.Constraint("DistanceX", -1, 1, 0, 3, 51.0))
sketch6.addConstraint(Sketcher.Constraint("DistanceY", -1, 1, 0, 3, 25.0))
sketch6.addConstraint(Sketcher.Constraint("DistanceX", -1, 1, 2, 3, 25.0))
sketch6.addConstraint(Sketcher.Constraint("DistanceX", -1, 1, 4, 3, 115.0))
sketch6.addConstraint(Sketcher.Constraint("DistanceX", -1, 1, 6, 3, 89.0))
pad3 = body.newObject("PartDesign::Pad", "Pad002")
pad3.Profile = sketch6
pad3.Length = 10

# Sketch on YZ plane
sketch7 = body.newObject("Sketcher::SketchObject", "Sketch006")
sketch7.AttachmentSupport = (doc.getObject("YZ_Plane"), [""])
sketch7.MapMode = "FlatFace"
sketch7.AttachmentOffset = App.Placement(V(0, 0, 11.5), App.Rotation())
sketch7.addGeometry(Part.Circle(V(118, 25, 0), V(0, 0, 1), 10), False)
sketch7.addGeometry(Part.Circle(V(118, 25, 0), V(0, 0, 1), 8), False)
sketch7.addConstraint(Sketcher.Constraint("Coincident", 1, 3, 0, 3))
sketch7.addConstraint(Sketcher.Constraint("Diameter", 0, 20.5))
sketch7.addConstraint(Sketcher.Constraint("Diameter", 1, 16.5))
sketch7.addConstraint(Sketcher.Constraint("DistanceY", -1, 1, 0, 3, 25.0))
sketch7.addConstraint(Sketcher.Constraint("DistanceX", -1, 1, 0, 3, 117.505))
pad4 = body.newObject("PartDesign::Pad", "Pad003")
pad4.Profile = sketch7
pad4.Length = 10
pad4.Reversed = True
doc.recompute()

datumplane = body.newObject("PartDesign::Plane", "DatumPlane")
datumplane.AttachmentSupport = (doc.getObject("YZ_Plane"), [""])
datumplane.MapMode = "FlatFace"
datumplane.AttachmentOffset = App.Placement(V(0, 0, 70), App.Rotation())
mirrored = body.newObject("PartDesign::Mirrored", "Mirrored")
mirrored.Originals = [pad4]
mirrored.MirrorPlane = (datumplane, [""])
body.Tip = mirrored

doc.recompute()
